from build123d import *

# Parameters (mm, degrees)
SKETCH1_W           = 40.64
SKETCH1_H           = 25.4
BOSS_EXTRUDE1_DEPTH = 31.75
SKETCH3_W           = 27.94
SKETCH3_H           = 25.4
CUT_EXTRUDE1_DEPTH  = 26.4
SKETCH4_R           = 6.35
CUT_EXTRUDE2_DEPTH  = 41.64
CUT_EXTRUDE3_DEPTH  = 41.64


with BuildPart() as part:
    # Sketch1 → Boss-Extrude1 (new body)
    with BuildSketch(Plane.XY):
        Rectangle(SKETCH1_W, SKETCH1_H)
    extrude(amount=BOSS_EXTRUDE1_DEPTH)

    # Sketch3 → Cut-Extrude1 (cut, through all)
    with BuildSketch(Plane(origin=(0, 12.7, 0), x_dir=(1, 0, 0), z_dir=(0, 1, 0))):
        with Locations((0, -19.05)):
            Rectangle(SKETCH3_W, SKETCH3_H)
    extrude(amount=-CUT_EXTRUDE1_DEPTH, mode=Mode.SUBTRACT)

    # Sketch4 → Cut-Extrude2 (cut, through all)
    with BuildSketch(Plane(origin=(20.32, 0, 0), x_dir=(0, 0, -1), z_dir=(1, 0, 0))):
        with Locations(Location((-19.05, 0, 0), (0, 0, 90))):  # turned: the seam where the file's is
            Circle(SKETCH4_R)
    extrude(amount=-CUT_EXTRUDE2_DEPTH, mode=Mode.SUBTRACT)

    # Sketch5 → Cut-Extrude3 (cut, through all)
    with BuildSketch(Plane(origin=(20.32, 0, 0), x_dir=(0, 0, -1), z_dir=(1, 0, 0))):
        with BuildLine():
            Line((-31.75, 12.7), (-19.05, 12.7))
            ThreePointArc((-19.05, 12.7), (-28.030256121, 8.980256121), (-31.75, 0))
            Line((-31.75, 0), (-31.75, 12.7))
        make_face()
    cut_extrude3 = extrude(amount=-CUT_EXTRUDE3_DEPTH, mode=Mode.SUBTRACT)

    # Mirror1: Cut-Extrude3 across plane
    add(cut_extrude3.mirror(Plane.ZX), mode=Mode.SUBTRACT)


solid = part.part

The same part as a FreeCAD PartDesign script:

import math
import FreeCAD as App
import Part
import Sketcher
Q = App.Units.Quantity

doc = App.newDocument("Part")
body = doc.addObject("PartDesign::Body", "Body")

# Sketch on XY plane
sketch1 = body.newObject("Sketcher::SketchObject", "Sketch")
sketch1.AttachmentSupport = (doc.getObject("XY_Plane"), [""])
sketch1.MapMode = "FlatFace"
sketch1.addGeometry([
    Part.LineSegment(App.Vector(-20.32, 12.7, 0), App.Vector(-20.32, -12.7, 0)),
    Part.LineSegment(App.Vector(-20.32, -12.7, 0), App.Vector(20.32, -12.7, 0)),
    Part.LineSegment(App.Vector(20.32, -12.7, 0), App.Vector(20.32, 12.7, 0)),
    Part.LineSegment(App.Vector(20.32, 12.7, 0), App.Vector(-20.32, 12.7, 0)),
], False)
sketch1.addConstraint([
    Sketcher.Constraint("Coincident", 0, 2, 1, 1),
    Sketcher.Constraint("Coincident", 1, 2, 2, 1),
    Sketcher.Constraint("Coincident", 2, 2, 3, 1),
    Sketcher.Constraint("Coincident", 3, 2, 0, 1),
    Sketcher.Constraint("Vertical", 0),
    Sketcher.Constraint("Horizontal", 1),
    Sketcher.Constraint("Vertical", 2),
    Sketcher.Constraint("Horizontal", 3),
    Sketcher.Constraint("Symmetric", 0, 2, 2, 2, -1, 1),
    Sketcher.Constraint("DistanceY", 0, 2, 0, 1, Q("1 in")),
    Sketcher.Constraint("DistanceX", 1, 1, 1, 2, Q("1.6 in")),
])
pad1 = body.newObject("PartDesign::Pad", "Pad")
pad1.Profile = sketch1
pad1.Length = Q("1.25 in")

# Sketch on XZ plane
sketch2 = body.newObject("Sketcher::SketchObject", "Sketch001")
sketch2.AttachmentSupport = (doc.getObject("XZ_Plane"), [""])
sketch2.MapMode = "FlatFace"
sketch2.AttachmentOffset = App.Placement(App.Vector(0, 0, -0.5 * 25.4), App.Rotation())
sketch2.addGeometry([
    Part.LineSegment(App.Vector(-13.97, 6.35, 0), App.Vector(-13.97, 31.75, 0)),
    Part.LineSegment(App.Vector(-13.97, 31.75, 0), App.Vector(13.97, 31.75, 0)),
    Part.LineSegment(App.Vector(13.97, 31.75, 0), App.Vector(13.97, 6.35, 0)),
    Part.LineSegment(App.Vector(13.97, 6.35, 0), App.Vector(-13.97, 6.35, 0)),
], False)
sketch2.addConstraint([
    Sketcher.Constraint("Coincident", 0, 2, 1, 1),
    Sketcher.Constraint("Coincident", 1, 2, 2, 1),
    Sketcher.Constraint("Coincident", 2, 2, 3, 1),
    Sketcher.Constraint("Coincident", 3, 2, 0, 1),
    Sketcher.Constraint("Vertical", 0),
    Sketcher.Constraint("Horizontal", 1),
    Sketcher.Constraint("Vertical", 2),
    Sketcher.Constraint("Horizontal", 3),
    Sketcher.Constraint("DistanceY", 0, 1, 0, 2, Q("1 in")),
    Sketcher.Constraint("DistanceX", 1, 1, 1, 2, Q("1.1 in")),
    Sketcher.Constraint("DistanceX", 0, 2, -1, 1, Q("0.55 in")),
    Sketcher.Constraint("DistanceY", -1, 1, 0, 2, Q("1.25 in")),
])
pocket1 = body.newObject("PartDesign::Pocket", "Pocket")
pocket1.Profile = sketch2
pocket1.Type = "ThroughAll"
pocket1.Reversed = True

# Sketch on YZ plane
sketch3 = body.newObject("Sketcher::SketchObject", "Sketch002")
sketch3.AttachmentSupport = (doc.getObject("YZ_Plane"), [""])
sketch3.MapMode = "FlatFace"
sketch3.AttachmentOffset = App.Placement(App.Vector(0, 0, 0.8 * 25.4), App.Rotation())
sketch3.addGeometry(Part.Circle(App.Vector(0, 19.05, 0), App.Vector(0, 0, 1), 6.35), False)
sketch3.addConstraint([
    Sketcher.Constraint("PointOnObject", 0, 3, -2),
    Sketcher.Constraint("Diameter", 0, Q("0.5 in")),
    Sketcher.Constraint("DistanceY", -1, 1, 0, 3, Q("0.75 in")),
])
pocket2 = body.newObject("PartDesign::Pocket", "Pocket001")
pocket2.Profile = sketch3
pocket2.Type = "ThroughAll"

# Sketch on YZ plane
sketch4 = body.newObject("Sketcher::SketchObject", "Sketch003")
sketch4.AttachmentSupport = (doc.getObject("YZ_Plane"), [""])
sketch4.MapMode = "FlatFace"
sketch4.AttachmentOffset = App.Placement(App.Vector(0, 0, 0.8 * 25.4), App.Rotation())
sketch4.addGeometry([
    Part.LineSegment(App.Vector(12.7, 19.05, 0), App.Vector(12.7, 31.75, 0)),
    Part.LineSegment(App.Vector(12.7, 31.75, 0), App.Vector(0, 31.75, 0)),
    Part.ArcOfCircle(Part.Circle(App.Vector(0, 19.05, 0), App.Vector(0, 0, 1), 12.7), math.radians(0), math.radians(90)),
], False)
sketch4.addConstraint([
    Sketcher.Constraint("Coincident", 0, 2, 1, 1),
    Sketcher.Constraint("Tangent", 1, 2, 2, 2),
    Sketcher.Constraint("Tangent", 2, 1, 0, 1),
    Sketcher.Constraint("Vertical", 0),
    Sketcher.Constraint("Horizontal", 1),
    Sketcher.Constraint("PointOnObject", 2, 3, -2),
    Sketcher.Constraint("Radius", 2, Q("0.5 in")),
    Sketcher.Constraint("DistanceY", -1, 1, 2, 3, Q("0.75 in")),
])
pocket3 = body.newObject("PartDesign::Pocket", "Pocket002")
pocket3.Profile = sketch4
pocket3.Type = "ThroughAll"
doc.recompute()

mirrored = body.newObject("PartDesign::Mirrored", "Mirrored")
mirrored.Originals = [pocket3]
mirrored.MirrorPlane = (doc.getObject("XZ_Plane"), [""])
body.Tip = mirrored

doc.recompute()
